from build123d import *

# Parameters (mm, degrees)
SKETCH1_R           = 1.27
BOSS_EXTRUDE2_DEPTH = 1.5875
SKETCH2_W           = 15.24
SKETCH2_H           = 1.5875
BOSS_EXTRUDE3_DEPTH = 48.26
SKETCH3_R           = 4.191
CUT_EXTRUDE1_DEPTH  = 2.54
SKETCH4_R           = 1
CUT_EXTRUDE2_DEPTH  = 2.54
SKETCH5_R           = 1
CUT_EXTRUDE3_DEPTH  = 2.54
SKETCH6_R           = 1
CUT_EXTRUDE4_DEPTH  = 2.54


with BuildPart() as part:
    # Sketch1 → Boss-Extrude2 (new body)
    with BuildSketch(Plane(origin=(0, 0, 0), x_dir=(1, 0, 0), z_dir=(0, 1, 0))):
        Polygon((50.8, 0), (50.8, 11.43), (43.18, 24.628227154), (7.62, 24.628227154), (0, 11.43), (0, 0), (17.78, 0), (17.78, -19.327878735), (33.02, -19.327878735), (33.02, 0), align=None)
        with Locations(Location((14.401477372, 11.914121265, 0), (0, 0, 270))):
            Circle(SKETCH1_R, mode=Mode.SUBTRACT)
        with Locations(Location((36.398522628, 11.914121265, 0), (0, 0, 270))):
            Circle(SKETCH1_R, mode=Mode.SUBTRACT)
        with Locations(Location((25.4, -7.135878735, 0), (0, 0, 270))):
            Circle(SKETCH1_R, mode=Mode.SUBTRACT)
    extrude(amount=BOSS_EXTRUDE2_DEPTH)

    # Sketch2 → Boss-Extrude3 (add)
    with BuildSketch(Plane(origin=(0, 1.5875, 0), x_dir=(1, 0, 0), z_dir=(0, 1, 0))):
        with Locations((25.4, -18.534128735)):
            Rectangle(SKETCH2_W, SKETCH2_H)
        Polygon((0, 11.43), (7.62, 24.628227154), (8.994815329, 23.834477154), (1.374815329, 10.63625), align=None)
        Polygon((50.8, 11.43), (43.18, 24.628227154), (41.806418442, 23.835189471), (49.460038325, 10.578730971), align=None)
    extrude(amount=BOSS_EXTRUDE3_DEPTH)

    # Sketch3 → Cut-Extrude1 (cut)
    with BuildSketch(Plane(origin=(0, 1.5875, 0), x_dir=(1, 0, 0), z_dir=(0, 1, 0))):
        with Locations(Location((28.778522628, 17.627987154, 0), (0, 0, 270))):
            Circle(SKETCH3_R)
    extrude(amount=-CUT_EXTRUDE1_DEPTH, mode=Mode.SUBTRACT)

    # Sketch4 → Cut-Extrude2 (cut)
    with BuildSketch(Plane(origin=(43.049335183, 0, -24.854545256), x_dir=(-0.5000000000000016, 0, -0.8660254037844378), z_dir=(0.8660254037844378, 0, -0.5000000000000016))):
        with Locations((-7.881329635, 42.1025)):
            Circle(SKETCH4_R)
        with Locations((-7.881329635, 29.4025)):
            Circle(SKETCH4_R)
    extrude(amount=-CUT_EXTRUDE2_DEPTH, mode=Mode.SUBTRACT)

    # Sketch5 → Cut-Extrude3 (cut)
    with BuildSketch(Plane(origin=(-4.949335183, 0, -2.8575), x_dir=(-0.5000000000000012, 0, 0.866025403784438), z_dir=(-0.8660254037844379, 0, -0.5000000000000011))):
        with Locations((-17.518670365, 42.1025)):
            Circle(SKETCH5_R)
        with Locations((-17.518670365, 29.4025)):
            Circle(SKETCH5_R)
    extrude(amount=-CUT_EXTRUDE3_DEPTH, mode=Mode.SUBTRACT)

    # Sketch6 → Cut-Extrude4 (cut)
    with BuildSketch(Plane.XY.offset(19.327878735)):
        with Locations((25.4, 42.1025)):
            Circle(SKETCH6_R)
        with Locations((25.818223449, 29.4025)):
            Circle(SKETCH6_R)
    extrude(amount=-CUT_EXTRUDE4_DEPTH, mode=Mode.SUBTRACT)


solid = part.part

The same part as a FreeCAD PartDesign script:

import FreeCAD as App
import Part
import Sketcher

V = App.Vector
Q = App.Units.Quantity


def add_polygon(sketch, points):
    """Adds a closed chain of lines whose ends are joined by coincident constraints."""
    first, n = sketch.GeometryCount, len(points)
    for a, b in zip(points, points[1:] + points[:1]):
        sketch.addGeometry(Part.LineSegment(App.Vector(*a, 0), App.Vector(*b, 0)), False)
    for i in range(n):
        sketch.addConstraint(Sketcher.Constraint("Coincident", first + i, 2, first + (i + 1) % n, 1))

doc = App.newDocument("Part")
params = doc.addObject("Spreadsheet::Sheet", "Params")
for row, (alias, value) in enumerate([
    ("sketch1_diameter", "0.1 in"),
    ("sketch1_width", "1.4 in"),
    ("sketch1_width2", "0.7 in"),
    ("sketch1_width3", "0.6 in"),
    ("sketch1_height", "0.45 in"),
    ("pad1_length", "0.0625 in"),
    ("sketch2_width", "0.6 in"),
    ("sketch2_length", "0.6 in"),
    ("sketch2_height", "0.0625 in"),
    ("sketch2_length2", "0.0625 in"),
    ("pad2_length", "1.9 in"),
    ("sketch3_diameter", "0.33 in"),
    ("pocket1_length", "0.1 in"),
    ("pocket2_length", "0.1 in"),
    ("pocket3_length", "0.1 in"),
    ("pocket4_length", "0.1 in"),
], start=1):
    params.set(f"A{row}", alias)
    params.set(f"B{row}", "=" + value)
    params.setAlias(f"B{row}", alias)

body = doc.addObject("PartDesign::Body", "Body")

# Sketch on XZ plane
sketch1 = body.newObject("Sketcher::SketchObject", "Sketch")
sketch1.AttachmentSupport = (doc.getObject("XZ_Plane"), [""])
sketch1.MapMode = "FlatFace"
add_polygon(sketch1, [(50.8, 0), (50.8, -11.4), (43.2, -24.6), (7.6, -24.6), (0, -11.4), (0, 0), (17.8, 0), (17.8, 19.3), (33, 19.3), (33, 0)])  # lines 0-9
sketch1.addGeometry(Part.Circle(V(25.4, 7.1, 0), V(0, 0, 1), 1.3), False)  # 10
sketch1.addGeometry(Part.Circle(V(14.4, -11.9, 0), V(0, 0, 1), 1.3), False)  # 11
sketch1.addGeometry(Part.Circle(V(36.4, -11.9, 0), V(0, 0, 1), 1.3), False)  # 12
sketch1.addConstraint(Sketcher.Constraint("Vertical", 0))
sketch1.addConstraint(Sketcher.Constraint("Horizontal", 2))
sketch1.addConstraint(Sketcher.Constraint("Vertical", 4))
sketch1.addConstraint(Sketcher.Constraint("Horizontal", 5))
sketch1.addConstraint(Sketcher.Constraint("Vertical", 6))
sketch1.addConstraint(Sketcher.Constraint("Horizontal", 7))
sketch1.addConstraint(Sketcher.Constraint("Vertical", 8))
sketch1.addConstraint(Sketcher.Constraint("Horizontal", 9))
sketch1.addConstraint(Sketcher.Constraint("Coincident", 4, 2, -1, 1))
sketch1.addConstraint(Sketcher.Constraint("Equal", 10, 11))
sketch1.addConstraint(Sketcher.Constraint("Equal", 11, 12))
sketch1.addConstraint(Sketcher.Constraint("PointOnObject", 8, 2, -1))
sketch1.addConstraint(Sketcher.Constraint("Horizontal", 11, 3, 12, 3))
sketch1.addConstraint(Sketcher.Constraint("Horizontal", 0, 2, 3, 2))
sketch1.addConstraint(Sketcher.Constraint("Equal", 5, 9))
sketch1.addConstraint(Sketcher.Constraint("Equal", 1, 3))
sketch1.addConstraint(Sketcher.Constraint("Diameter", 10, Q("0.1 in")))
sketch1.addConstraint(Sketcher.Constraint("DistanceX", 2, 2, 2, 1, Q("1.4 in")))
sketch1.addConstraint(Sketcher.Constraint("DistanceX", 5, 1, 5, 2, Q("0.7 in")))
sketch1.addConstraint(Sketcher.Constraint("DistanceX", 7, 1, 7, 2, Q("0.6 in")))
sketch1.addConstraint(Sketcher.Constraint("DistanceX", -1, 1, 10, 3, Q("1 in")))
sketch1.addConstraint(Sketcher.Constraint("Angle", 1, Q("-120 deg")))
sketch1.addConstraint(Sketcher.Constraint("DistanceY", 0, 2, 0, 1, Q("0.45 in")))
sketch1.addConstraint(Sketcher.Constraint("DistanceY", 11, 3, 10, 3, Q("0.75 in")))
sketch1.addConstraint(Sketcher.Constraint("DistanceY", 10, 3, 6, 2, Q("0.48 in")))
sketch1.addConstraint(Sketcher.Constraint("DistanceY", 6, 1, 6, 2, Q("19.327879 mm")))
sketch1.addConstraint(Sketcher.Constraint("DistanceX", -1, 1, 11, 3, Q("14.401477 mm")))
sketch1.addConstraint(Sketcher.Constraint("DistanceX", -1, 1, 12, 3, Q("36.398523 mm")))
sketch1.setExpression("Constraints[26]", "Params.sketch1_diameter")
sketch1.setExpression("Constraints[27]", "Params.sketch1_width")
sketch1.setExpression("Constraints[28]", "Params.sketch1_width2")
sketch1.setExpression("Constraints[29]", "Params.sketch1_width3")
sketch1.setExpression("Constraints[32]", "Params.sketch1_height")
pad1 = body.newObject("PartDesign::Pad", "Pad")
pad1.Profile = sketch1
pad1.setExpression("Length", "Params.pad1_length")
pad1.Reversed = True

# Sketch on XZ plane
sketch2 = body.newObject("Sketcher::SketchObject", "Sketch001")
sketch2.AttachmentSupport = (doc.getObject("XZ_Plane"), [""])
sketch2.MapMode = "FlatFace"
sketch2.AttachmentOffset = App.Placement(V(0, 0, -0.0625 * 25.4), App.Rotation())
add_polygon(sketch2, [(17.8, 17.7), (17.8, 19.3), (33, 19.3), (33, 17.7)])  # lines 0-3
add_polygon(sketch2, [(7.6, -24.6), (0, -11.4), (1.4, -10.6), (9, -23.8)])  # lines 4-7
add_polygon(sketch2, [(50.8, -11.4), (43.2, -24.6), (41.8, -23.8), (49.5, -10.6)])  # lines 8-11
sketch2.addConstraint(Sketcher.Constraint("Vertical", 0))
sketch2.addConstraint(Sketcher.Constraint("Horizontal", 1))
sketch2.addConstraint(Sketcher.Constraint("Vertical", 2))
sketch2.addConstraint(Sketcher.Constraint("Horizontal", 3))
sketch2.addConstraint(Sketcher.Constraint("PointOnObject", 4, 2, -2))
sketch2.addConstraint(Sketcher.Constraint("Perpendicular", 4, 5))
sketch2.addConstraint(Sketcher.Constraint("Perpendicular", 5, 6))
sketch2.addConstraint(Sketcher.Constraint("Perpendicular", 6, 7))
sketch2.addConstraint(Sketcher.Constraint("Perpendicular", 8, 9))
sketch2.addConstraint(Sketcher.Constraint("Perpendicular", 9, 10))
sketch2.addConstraint(Sketcher.Constraint("Horizontal", 7, 2, 8, 2))
sketch2.addConstraint(Sketcher.Constraint("Horizontal", 4, 2, 11, 2))
sketch2.addConstraint(Sketcher.Constraint("Equal", 6, 8))
sketch2.addConstraint(Sketcher.Constraint("Equal", 7, 11))
sketch2.addConstraint(Sketcher.Constraint("DistanceX", 1, 1, 1, 2, Q("0.6 in")))
sketch2.addConstraint(Sketcher.Constraint("DistanceX", -1, 1, 11, 2, Q("2 in")))
sketch2.addConstraint(Sketcher.Constraint("Angle", 4, Q("120 deg")))
sketch2.addConstraint(Sketcher.Constraint("Distance", 4, Q("0.6 in")))
sketch2.addConstraint(Sketcher.Constraint("DistanceX", -1, 1, 0, 2, Q("0.7 in")))
sketch2.addConstraint(Sketcher.Constraint("DistanceY", 0, 1, 0, 2, Q("0.0625 in")))
sketch2.addConstraint(Sketcher.Constraint("DistanceY", 4, 2, -1, 1, Q("0.45 in")))
sketch2.addConstraint(Sketcher.Constraint("Distance", 5, Q("0.0625 in")))
sketch2.addConstraint(Sketcher.Constraint("Distance", 10, Q("15.30724 mm")))
sketch2.addConstraint(Sketcher.Constraint("DistanceY", -1, 1, 0, 2, Q("19.327879 mm")))
sketch2.setExpression("Constraints[26]", "Params.sketch2_width")
sketch2.setExpression("Constraints[29]", "Params.sketch2_length")
sketch2.setExpression("Constraints[31]", "Params.sketch2_height")
sketch2.setExpression("Constraints[33]", "Params.sketch2_length2")
pad2 = body.newObject("PartDesign::Pad", "Pad001")
pad2.Profile = sketch2
pad2.setExpression("Length", "Params.pad2_length")
pad2.Reversed = True

# Sketch on XZ plane
sketch3 = body.newObject("Sketcher::SketchObject", "Sketch002")
sketch3.AttachmentSupport = (doc.getObject("XZ_Plane"), [""])
sketch3.MapMode = "FlatFace"
sketch3.AttachmentOffset = App.Placement(V(0, 0, -0.0625 * 25.4), App.Rotation())
sketch3.addGeometry(Part.Circle(V(28.8, -17.6, 0), V(0, 0, 1), 4.2), False)
sketch3.addConstraint(Sketcher.Constraint("Diameter", 0, Q("0.33 in")))
sketch3.addConstraint(Sketcher.Constraint("DistanceX", -1, 1, 0, 3, Q("28.778523 mm")))
sketch3.addConstraint(Sketcher.Constraint("DistanceY", 0, 3, -1, 1, Q("17.627987 mm")))
sketch3.setExpression("Constraints[0]", "Params.sketch3_diameter")
pocket1 = body.newObject("PartDesign::Pocket", "Pocket")
pocket1.Profile = sketch3
pocket1.setExpression("Length", "Params.pocket1_length")
pocket1.Reversed = True

# Sketch on an angled plane
sketch4 = body.newObject("Sketcher::SketchObject", "Sketch003")
sketch4.Placement = App.Placement(V(43.049335, 0, -24.854545), App.Rotation(V(-0.5, 0, -0.866025404), V(0, 1, 0), V(0.866025404, 0, -0.5), "ZXY"))
sketch4.addGeometry(Part.Circle(V(-7.9, 42.1, 0), V(0, 0, 1), 1), False)
sketch4.addGeometry(Part.Circle(V(-7.9, 29.4, 0), V(0, 0, 1), 1), False)
sketch4.addConstraint(Sketcher.Constraint("Equal", 0, 1))
sketch4.addConstraint(Sketcher.Constraint("Vertical", 0, 3, 1, 3))
sketch4.addConstraint(Sketcher.Constraint("DistanceY", 1, 3, 0, 3, Q("0.5 in")))
sketch4.addConstraint(Sketcher.Constraint("Diameter", 0, Q("2 mm")))
sketch4.addConstraint(Sketcher.Constraint("DistanceY", -1, 1, 0, 3, Q("42.1025 mm")))
sketch4.addConstraint(Sketcher.Constraint("DistanceX", 0, 3, -1, 1, Q("7.88133 mm")))
pocket2 = body.newObject("PartDesign::Pocket", "Pocket001")
pocket2.Profile = sketch4
pocket2.setExpression("Length", "Params.pocket2_length")

# Sketch on an angled plane
sketch5 = body.newObject("Sketcher::SketchObject", "Sketch004")
sketch5.Placement = App.Placement(V(-4.949335, 0, -2.8575), App.Rotation(V(-0.5, 0, 0.866025404), V(0, 1, 0), V(-0.866025404, 0, -0.5), "ZXY"))
sketch5.addGeometry(Part.Circle(V(-17.5, 42.1, 0), V(0, 0, 1), 1), False)
sketch5.addGeometry(Part.Circle(V(-17.5, 29.4, 0), V(0, 0, 1), 1), False)
sketch5.addConstraint(Sketcher.Constraint("Equal", 0, 1))
sketch5.addConstraint(Sketcher.Constraint("Vertical", 0, 3, 1, 3))
sketch5.addConstraint(Sketcher.Constraint("DistanceY", 1, 3, 0, 3, Q("0.5 in")))
sketch5.addConstraint(Sketcher.Constraint("Diameter", 0, Q("2 mm")))
sketch5.addConstraint(Sketcher.Constraint("DistanceY", -1, 1, 0, 3, Q("42.1025 mm")))
sketch5.addConstraint(Sketcher.Constraint("DistanceX", 0, 3, -1, 1, Q("17.51867 mm")))
pocket3 = body.newObject("PartDesign::Pocket", "Pocket002")
pocket3.Profile = sketch5
pocket3.setExpression("Length", "Params.pocket3_length")

# Sketch on XY plane
sketch6 = body.newObject("Sketcher::SketchObject", "Sketch005")
sketch6.AttachmentSupport = (doc.getObject("XY_Plane"), [""])
sketch6.MapMode = "FlatFace"
sketch6.AttachmentOffset = App.Placement(V(0, 0, 19.327879), App.Rotation())
sketch6.addGeometry(Part.Circle(V(25.4, 42.1, 0), V(0, 0, 1), 1), False)
sketch6.addGeometry(Part.Circle(V(25.8, 29.4, 0), V(0, 0, 1), 1), False)
sketch6.addConstraint(Sketcher.Constraint("Equal", 0, 1))
sketch6.addConstraint(Sketcher.Constraint("DistanceX", -1, 1, 0, 3, Q("1 in")))
sketch6.addConstraint(Sketcher.Constraint("DistanceY", 1, 3, 0, 3, Q("0.5 in")))
sketch6.addConstraint(Sketcher.Constraint("Diameter", 0, Q("2 mm")))
sketch6.addConstraint(Sketcher.Constraint("DistanceY", -1, 1, 0, 3, Q("42.1025 mm")))
sketch6.addConstraint(Sketcher.Constraint("DistanceX", -1, 1, 1, 3, Q("25.818223 mm")))
pocket4 = body.newObject("PartDesign::Pocket", "Pocket003")
pocket4.Profile = sketch6
pocket4.setExpression("Length", "Params.pocket4_length")

doc.recompute()
